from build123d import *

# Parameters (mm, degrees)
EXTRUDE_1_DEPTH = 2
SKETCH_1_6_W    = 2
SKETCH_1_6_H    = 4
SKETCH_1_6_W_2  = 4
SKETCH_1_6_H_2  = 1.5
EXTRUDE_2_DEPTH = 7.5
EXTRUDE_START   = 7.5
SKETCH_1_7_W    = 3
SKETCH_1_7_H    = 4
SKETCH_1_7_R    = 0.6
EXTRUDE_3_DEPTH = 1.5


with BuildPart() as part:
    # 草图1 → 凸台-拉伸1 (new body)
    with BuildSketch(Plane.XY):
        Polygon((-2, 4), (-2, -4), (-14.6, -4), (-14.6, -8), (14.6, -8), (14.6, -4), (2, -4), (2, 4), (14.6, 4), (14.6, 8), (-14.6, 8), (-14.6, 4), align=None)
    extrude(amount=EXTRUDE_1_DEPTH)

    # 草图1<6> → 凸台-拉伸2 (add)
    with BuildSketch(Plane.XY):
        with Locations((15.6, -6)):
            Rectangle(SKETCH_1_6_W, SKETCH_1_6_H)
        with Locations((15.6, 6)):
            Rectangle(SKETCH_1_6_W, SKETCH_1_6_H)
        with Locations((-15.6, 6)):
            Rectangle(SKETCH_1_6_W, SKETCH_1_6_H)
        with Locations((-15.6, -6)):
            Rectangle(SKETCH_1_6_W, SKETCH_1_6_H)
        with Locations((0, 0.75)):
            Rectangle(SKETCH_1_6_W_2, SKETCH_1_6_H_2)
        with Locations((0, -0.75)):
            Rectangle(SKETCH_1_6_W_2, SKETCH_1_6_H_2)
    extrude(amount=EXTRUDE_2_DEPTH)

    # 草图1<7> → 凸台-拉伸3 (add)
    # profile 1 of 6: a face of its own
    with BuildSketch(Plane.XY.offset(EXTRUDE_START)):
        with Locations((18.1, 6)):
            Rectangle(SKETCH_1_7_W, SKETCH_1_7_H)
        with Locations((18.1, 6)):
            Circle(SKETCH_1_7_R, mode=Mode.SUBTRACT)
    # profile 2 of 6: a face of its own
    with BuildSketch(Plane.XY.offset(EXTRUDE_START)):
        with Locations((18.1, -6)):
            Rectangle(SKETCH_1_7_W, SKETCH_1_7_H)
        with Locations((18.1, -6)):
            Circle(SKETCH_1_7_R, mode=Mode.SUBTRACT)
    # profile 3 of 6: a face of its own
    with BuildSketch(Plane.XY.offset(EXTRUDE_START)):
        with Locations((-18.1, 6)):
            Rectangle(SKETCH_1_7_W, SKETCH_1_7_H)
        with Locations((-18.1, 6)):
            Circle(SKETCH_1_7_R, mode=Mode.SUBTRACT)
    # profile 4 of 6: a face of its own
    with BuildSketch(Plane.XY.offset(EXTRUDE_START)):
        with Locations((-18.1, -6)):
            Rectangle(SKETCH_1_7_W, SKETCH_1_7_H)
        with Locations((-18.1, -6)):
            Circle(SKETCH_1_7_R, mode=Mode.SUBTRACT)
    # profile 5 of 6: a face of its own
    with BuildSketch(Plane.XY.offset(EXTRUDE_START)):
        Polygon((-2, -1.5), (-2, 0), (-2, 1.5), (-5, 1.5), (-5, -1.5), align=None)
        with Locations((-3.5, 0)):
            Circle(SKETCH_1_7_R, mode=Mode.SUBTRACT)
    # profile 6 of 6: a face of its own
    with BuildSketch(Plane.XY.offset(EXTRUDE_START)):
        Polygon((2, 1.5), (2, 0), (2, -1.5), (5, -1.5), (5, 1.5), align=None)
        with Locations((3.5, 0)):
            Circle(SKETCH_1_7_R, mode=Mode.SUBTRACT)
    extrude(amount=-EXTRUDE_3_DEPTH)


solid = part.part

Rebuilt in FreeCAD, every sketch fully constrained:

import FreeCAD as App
import Part
import Sketcher
from FreeCAD import Vector
Q = App.Units.Quantity

doc = App.newDocument("Part")
body = doc.addObject("PartDesign::Body", "Body")

sketch1 = doc.addObject("Sketcher::SketchObject", "Sketch")
body.addObject(sketch1)
sketch1.AttachmentSupport = (doc.XY_Plane, [""])
sketch1.MapMode = "FlatFace"
sketch1.addGeometry(Part.LineSegment(Vector(-2, 4, 0), Vector(-2, -4, 0)), False)
sketch1.addGeometry(Part.LineSegment(Vector(-2, -4, 0), Vector(-14.6, -4, 0)), False)
sketch1.addGeometry(Part.LineSegment(Vector(-14.6, -4, 0), Vector(-14.6, -8, 0)), False)
sketch1.addGeometry(Part.LineSegment(Vector(-14.6, -8, 0), Vector(14.6, -8, 0)), False)
sketch1.addGeometry(Part.LineSegment(Vector(14.6, -8, 0), Vector(14.6, -4, 0)), False)
sketch1.addGeometry(Part.LineSegment(Vector(14.6, -4, 0), Vector(2, -4, 0)), False)
sketch1.addGeometry(Part.LineSegment(Vector(2, -4, 0), Vector(2, 4, 0)), False)
sketch1.addGeometry(Part.LineSegment(Vector(2, 4, 0), Vector(14.6, 4, 0)), False)
sketch1.addGeometry(Part.LineSegment(Vector(14.6, 4, 0), Vector(14.6, 8, 0)), False)
sketch1.addGeometry(Part.LineSegment(Vector(14.6, 8, 0), Vector(-14.6, 8, 0)), False)
sketch1.addGeometry(Part.LineSegment(Vector(-14.6, 8, 0), Vector(-14.6, 4, 0)), False)
sketch1.addGeometry(Part.LineSegment(Vector(-14.6, 4, 0), Vector(-2, 4, 0)), False)
sketch1.addConstraint(Sketcher.Constraint("Coincident", 0, 2, 1, 1))
sketch1.addConstraint(Sketcher.Constraint("Coincident", 1, 2, 2, 1))
sketch1.addConstraint(Sketcher.Constraint("Coincident", 2, 2, 3, 1))
sketch1.addConstraint(Sketcher.Constraint("Coincident", 3, 2, 4, 1))
sketch1.addConstraint(Sketcher.Constraint("Coincident", 4, 2, 5, 1))
sketch1.addConstraint(Sketcher.Constraint("Coincident", 5, 2, 6, 1))
sketch1.addConstraint(Sketcher.Constraint("Coincident", 6, 2, 7, 1))
sketch1.addConstraint(Sketcher.Constraint("Coincident", 7, 2, 8, 1))
sketch1.addConstraint(Sketcher.Constraint("Coincident", 8, 2, 9, 1))
sketch1.addConstraint(Sketcher.Constraint("Coincident", 9, 2, 10, 1))
sketch1.addConstraint(Sketcher.Constraint("Coincident", 10, 2, 11, 1))
sketch1.addConstraint(Sketcher.Constraint("Coincident", 11, 2, 0, 1))
sketch1.addConstraint(Sketcher.Constraint("Vertical", 0))
sketch1.addConstraint(Sketcher.Constraint("Horizontal", 1))
sketch1.addConstraint(Sketcher.Constraint("Vertical", 2))
sketch1.addConstraint(Sketcher.Constraint("Horizontal", 3))
sketch1.addConstraint(Sketcher.Constraint("Vertical", 4))
sketch1.addConstraint(Sketcher.Constraint("Horizontal", 5))
sketch1.addConstraint(Sketcher.Constraint("Vertical", 6))
sketch1.addConstraint(Sketcher.Constraint("Horizontal", 7))
sketch1.addConstraint(Sketcher.Constraint("Vertical", 8))
sketch1.addConstraint(Sketcher.Constraint("Horizontal", 9))
sketch1.addConstraint(Sketcher.Constraint("Vertical", 10))
sketch1.addConstraint(Sketcher.Constraint("Horizontal", 11))
sketch1.addConstraint(Sketcher.Constraint("Symmetric", 0, 2, 6, 2, -1, 1))
sketch1.addConstraint(Sketcher.Constraint("Symmetric", 2, 2, 8, 2, -1, 1))
sketch1.addConstraint(Sketcher.Constraint("Symmetric", 4, 2, 10, 2, -1, 1))
sketch1.addConstraint(Sketcher.Constraint("Symmetric", 1, 2, 4, 2, -2))
sketch1.addConstraint(Sketcher.Constraint("DistanceY", 0, 2, 0, 1, Q("8 mm")))
sketch1.addConstraint(Sketcher.Constraint("DistanceY", 2, 2, 2, 1, Q("4 mm")))
sketch1.addConstraint(Sketcher.Constraint("DistanceX", 1, 2, 1, 1, Q("12.6 mm")))
sketch1.addConstraint(Sketcher.Constraint("DistanceX", 3, 1, 3, 2, Q("29.2 mm")))
pad1 = doc.addObject("PartDesign::Pad", "Pad")
body.addObject(pad1)
pad1.Profile = sketch1
pad1.Length = 2

sketch2 = doc.addObject("Sketcher::SketchObject", "Sketch001")
body.addObject(sketch2)
sketch2.AttachmentSupport = (doc.XY_Plane, [""])
sketch2.MapMode = "FlatFace"
sketch2.addGeometry(Part.LineSegment(Vector(14.6, -4, 0), Vector(14.6, -8, 0)), False)
sketch2.addGeometry(Part.LineSegment(Vector(14.6, -8, 0), Vector(16.6, -8, 0)), False)
sketch2.addGeometry(Part.LineSegment(Vector(16.6, -8, 0), Vector(16.6, -4, 0)), False)
sketch2.addGeometry(Part.LineSegment(Vector(16.6, -4, 0), Vector(14.6, -4, 0)), False)
sketch2.addGeometry(Part.LineSegment(Vector(14.6, 8, 0), Vector(14.6, 4, 0)), False)
sketch2.addGeometry(Part.LineSegment(Vector(14.6, 4, 0), Vector(16.6, 4, 0)), False)
sketch2.addGeometry(Part.LineSegment(Vector(16.6, 4, 0), Vector(16.6, 8, 0)), False)
sketch2.addGeometry(Part.LineSegment(Vector(16.6, 8, 0), Vector(14.6, 8, 0)), False)
sketch2.addGeometry(Part.LineSegment(Vector(-16.6, 8, 0), Vector(-16.6, 4, 0)), False)
sketch2.addGeometry(Part.LineSegment(Vector(-16.6, 4, 0), Vector(-14.6, 4, 0)), False)
sketch2.addGeometry(Part.LineSegment(Vector(-14.6, 4, 0), Vector(-14.6, 8, 0)), False)
sketch2.addGeometry(Part.LineSegment(Vector(-14.6, 8, 0), Vector(-16.6, 8, 0)), False)
sketch2.addGeometry(Part.LineSegment(Vector(-16.6, -4, 0), Vector(-16.6, -8, 0)), False)
sketch2.addGeometry(Part.LineSegment(Vector(-16.6, -8, 0), Vector(-14.6, -8, 0)), False)
sketch2.addGeometry(Part.LineSegment(Vector(-14.6, -8, 0), Vector(-14.6, -4, 0)), False)
sketch2.addGeometry(Part.LineSegment(Vector(-14.6, -4, 0), Vector(-16.6, -4, 0)), False)
sketch2.addGeometry(Part.LineSegment(Vector(-2, 1.5, 0), Vector(-2, -1.5, 0)), False)
sketch2.addGeometry(Part.LineSegment(Vector(-2, -1.5, 0), Vector(2, -1.5, 0)), False)
sketch2.addGeometry(Part.LineSegment(Vector(2, -1.5, 0), Vector(2, 1.5, 0)), False)
sketch2.addGeometry(Part.LineSegment(Vector(2, 1.5, 0), Vector(-2, 1.5, 0)), False)
sketch2.addConstraint(Sketcher.Constraint("Coincident", 0, 2, 1, 1))
sketch2.addConstraint(Sketcher.Constraint("Coincident", 1, 2, 2, 1))
sketch2.addConstraint(Sketcher.Constraint("Coincident", 2, 2, 3, 1))
sketch2.addConstraint(Sketcher.Constraint("Coincident", 3, 2, 0, 1))
sketch2.addConstraint(Sketcher.Constraint("Coincident", 4, 2, 5, 1))
sketch2.addConstraint(Sketcher.Constraint("Coincident", 5, 2, 6, 1))
sketch2.addConstraint(Sketcher.Constraint("Coincident", 6, 2, 7, 1))
sketch2.addConstraint(Sketcher.Constraint("Coincident", 7, 2, 4, 1))
sketch2.addConstraint(Sketcher.Constraint("Coincident", 8, 2, 9, 1))
sketch2.addConstraint(Sketcher.Constraint("Coincident", 9, 2, 10, 1))
sketch2.addConstraint(Sketcher.Constraint("Coincident", 10, 2, 11, 1))
sketch2.addConstraint(Sketcher.Constraint("Coincident", 11, 2, 8, 1))
sketch2.addConstraint(Sketcher.Constraint("Coincident", 12, 2, 13, 1))
sketch2.addConstraint(Sketcher.Constraint("Coincident", 13, 2, 14, 1))
sketch2.addConstraint(Sketcher.Constraint("Coincident", 14, 2, 15, 1))
sketch2.addConstraint(Sketcher.Constraint("Coincident", 15, 2, 12, 1))
sketch2.addConstraint(Sketcher.Constraint("Coincident", 16, 2, 17, 1))
sketch2.addConstraint(Sketcher.Constraint("Coincident", 17, 2, 18, 1))
sketch2.addConstraint(Sketcher.Constraint("Coincident", 18, 2, 19, 1))
sketch2.addConstraint(Sketcher.Constraint("Coincident", 19, 2, 16, 1))
sketch2.addConstraint(Sketcher.Constraint("Vertical", 0))
sketch2.addConstraint(Sketcher.Constraint("Horizontal", 1))
sketch2.addConstraint(Sketcher.Constraint("Vertical", 2))
sketch2.addConstraint(Sketcher.Constraint("Horizontal", 3))
sketch2.addConstraint(Sketcher.Constraint("Vertical", 4))
sketch2.addConstraint(Sketcher.Constraint("Horizontal", 5))
sketch2.addConstraint(Sketcher.Constraint("Vertical", 6))
sketch2.addConstraint(Sketcher.Constraint("Horizontal", 7))
sketch2.addConstraint(Sketcher.Constraint("Vertical", 8))
sketch2.addConstraint(Sketcher.Constraint("Horizontal", 9))
sketch2.addConstraint(Sketcher.Constraint("Vertical", 10))
sketch2.addConstraint(Sketcher.Constraint("Horizontal", 11))
sketch2.addConstraint(Sketcher.Constraint("Vertical", 12))
sketch2.addConstraint(Sketcher.Constraint("Horizontal", 13))
sketch2.addConstraint(Sketcher.Constraint("Vertical", 14))
sketch2.addConstraint(Sketcher.Constraint("Horizontal", 15))
sketch2.addConstraint(Sketcher.Constraint("Vertical", 16))
sketch2.addConstraint(Sketcher.Constraint("Horizontal", 17))
sketch2.addConstraint(Sketcher.Constraint("Vertical", 18))
sketch2.addConstraint(Sketcher.Constraint("Horizontal", 19))
sketch2.addConstraint(Sketcher.Constraint("Symmetric", 2, 2, 8, 2, -1, 1))
sketch2.addConstraint(Sketcher.Constraint("Symmetric", 0, 2, 10, 2, -1, 1))
sketch2.addConstraint(Sketcher.Constraint("Symmetric", 6, 2, 12, 2, -1, 1))
sketch2.addConstraint(Sketcher.Constraint("Symmetric", 4, 2, 14, 2, -1, 1))
sketch2.addConstraint(Sketcher.Constraint("Symmetric", 16, 2, 18, 2, -1, 1))
sketch2.addConstraint(Sketcher.Constraint("Symmetric", 5, 2, 8, 2, -2))
sketch2.addConstraint(Sketcher.Constraint("Symmetric", 7, 2, 10, 2, -2))
sketch2.addConstraint(Sketcher.Constraint("Equal", 19, 0))
sketch2.addConstraint(Sketcher.Constraint("DistanceX", 1, 1, 1, 2, Q("2 mm")))
sketch2.addConstraint(Sketcher.Constraint("DistanceX", 17, 1, 17, 2, Q("4 mm")))
sketch2.addConstraint(Sketcher.Constraint("DistanceY", 16, 2, 16, 1, Q("3 mm")))
sketch2.addConstraint(Sketcher.Constraint("DistanceY", 0, 2, -1, 1, Q("8 mm")))
sketch2.addConstraint(Sketcher.Constraint("DistanceX", -1, 1, 0, 2, Q("14.6 mm")))
pad2 = doc.addObject("PartDesign::Pad", "Pad001")
body.addObject(pad2)
pad2.Profile = sketch2
pad2.Length = 7.5

sketch3 = doc.addObject("Sketcher::SketchObject", "Sketch002")
body.addObject(sketch3)
sketch3.AttachmentSupport = (doc.XY_Plane, [""])
sketch3.MapMode = "FlatFace"
sketch3.AttachmentOffset = App.Placement(Vector(0, 0, 7.5), App.Rotation())
sketch3.addGeometry(Part.LineSegment(Vector(16.6, 8, 0), Vector(16.6, 4, 0)), False)
sketch3.addGeometry(Part.LineSegment(Vector(16.6, 4, 0), Vector(19.6, 4, 0)), False)
sketch3.addGeometry(Part.LineSegment(Vector(19.6, 4, 0), Vector(19.6, 8, 0)), False)
sketch3.addGeometry(Part.LineSegment(Vector(19.6, 8, 0), Vector(16.6, 8, 0)), False)
sketch3.addGeometry(Part.Circle(Vector(18.1, 6, 0), Vector(0, 0, 1), 0.6), False)
sketch3.addGeometry(Part.LineSegment(Vector(16.6, -4, 0), Vector(16.6, -8, 0)), False)
sketch3.addGeometry(Part.LineSegment(Vector(16.6, -8, 0), Vector(19.6, -8, 0)), False)
sketch3.addGeometry(Part.LineSegment(Vector(19.6, -8, 0), Vector(19.6, -4, 0)), False)
sketch3.addGeometry(Part.LineSegment(Vector(19.6, -4, 0), Vector(16.6, -4, 0)), False)
sketch3.addGeometry(Part.Circle(Vector(18.1, -6, 0), Vector(0, 0, 1), 0.6), False)
sketch3.addGeometry(Part.LineSegment(Vector(-19.6, 8, 0), Vector(-19.6, 4, 0)), False)
sketch3.addGeometry(Part.LineSegment(Vector(-19.6, 4, 0), Vector(-16.6, 4, 0)), False)
sketch3.addGeometry(Part.LineSegment(Vector(-16.6, 4, 0), Vector(-16.6, 8, 0)), False)
sketch3.addGeometry(Part.LineSegment(Vector(-16.6, 8, 0), Vector(-19.6, 8, 0)), False)
sketch3.addGeometry(Part.Circle(Vector(-18.1, 6, 0), Vector(0, 0, 1), 0.6), False)
sketch3.addGeometry(Part.LineSegment(Vector(-19.6, -4, 0), Vector(-19.6, -8, 0)), False)
sketch3.addGeometry(Part.LineSegment(Vector(-19.6, -8, 0), Vector(-16.6, -8, 0)), False)
sketch3.addGeometry(Part.LineSegment(Vector(-16.6, -8, 0), Vector(-16.6, -4, 0)), False)
sketch3.addGeometry(Part.LineSegment(Vector(-16.6, -4, 0), Vector(-19.6, -4, 0)), False)
sketch3.addGeometry(Part.Circle(Vector(-18.1, -6, 0), Vector(0, 0, 1), 0.6), False)
sketch3.addGeometry(Part.LineSegment(Vector(-2, -1.5, 0), Vector(-2, 1.5, 0)), False)
sketch3.addGeometry(Part.LineSegment(Vector(-2, 1.5, 0), Vector(-5, 1.5, 0)), False)
sketch3.addGeometry(Part.LineSegment(Vector(-5, 1.5, 0), Vector(-5, -1.5, 0)), False)
sketch3.addGeometry(Part.LineSegment(Vector(-5, -1.5, 0), Vector(-2, -1.5, 0)), False)
sketch3.addGeometry(Part.Circle(Vector(-3.5, 0, 0), Vector(0, 0, 1), 0.6), False)
sketch3.addGeometry(Part.LineSegment(Vector(2, 1.5, 0), Vector(2, -1.5, 0)), False)
sketch3.addGeometry(Part.LineSegment(Vector(2, -1.5, 0), Vector(5, -1.5, 0)), False)
sketch3.addGeometry(Part.LineSegment(Vector(5, -1.5, 0), Vector(5, 1.5, 0)), False)
sketch3.addGeometry(Part.LineSegment(Vector(5, 1.5, 0), Vector(2, 1.5, 0)), False)
sketch3.addGeometry(Part.Circle(Vector(3.5, 0, 0), Vector(0, 0, 1), 0.6), False)
sketch3.addConstraint(Sketcher.Constraint("Coincident", 0, 2, 1, 1))
sketch3.addConstraint(Sketcher.Constraint("Coincident", 1, 2, 2, 1))
sketch3.addConstraint(Sketcher.Constraint("Coincident", 2, 2, 3, 1))
sketch3.addConstraint(Sketcher.Constraint("Coincident", 3, 2, 0, 1))
sketch3.addConstraint(Sketcher.Constraint("Coincident", 5, 2, 6, 1))
sketch3.addConstraint(Sketcher.Constraint("Coincident", 6, 2, 7, 1))
sketch3.addConstraint(Sketcher.Constraint("Coincident", 7, 2, 8, 1))
sketch3.addConstraint(Sketcher.Constraint("Coincident", 8, 2, 5, 1))
sketch3.addConstraint(Sketcher.Constraint("Coincident", 10, 2, 11, 1))
sketch3.addConstraint(Sketcher.Constraint("Coincident", 11, 2, 12, 1))
sketch3.addConstraint(Sketcher.Constraint("Coincident", 12, 2, 13, 1))
sketch3.addConstraint(Sketcher.Constraint("Coincident", 13, 2, 10, 1))
sketch3.addConstraint(Sketcher.Constraint("Coincident", 15, 2, 16, 1))
sketch3.addConstraint(Sketcher.Constraint("Coincident", 16, 2, 17, 1))
sketch3.addConstraint(Sketcher.Constraint("Coincident", 17, 2, 18, 1))
sketch3.addConstraint(Sketcher.Constraint("Coincident", 18, 2, 15, 1))
sketch3.addConstraint(Sketcher.Constraint("Coincident", 20, 2, 21, 1))
sketch3.addConstraint(Sketcher.Constraint("Coincident", 21, 2, 22, 1))
sketch3.addConstraint(Sketcher.Constraint("Coincident", 22, 2, 23, 1))
sketch3.addConstraint(Sketcher.Constraint("Coincident", 23, 2, 20, 1))
sketch3.addConstraint(Sketcher.Constraint("Coincident", 25, 2, 26, 1))
sketch3.addConstraint(Sketcher.Constraint("Coincident", 26, 2, 27, 1))
sketch3.addConstraint(Sketcher.Constraint("Coincident", 27, 2, 28, 1))
sketch3.addConstraint(Sketcher.Constraint("Coincident", 28, 2, 25, 1))
sketch3.addConstraint(Sketcher.Constraint("Vertical", 0))
sketch3.addConstraint(Sketcher.Constraint("Horizontal", 1))
sketch3.addConstraint(Sketcher.Constraint("Vertical", 2))
sketch3.addConstraint(Sketcher.Constraint("Horizontal", 3))
sketch3.addConstraint(Sketcher.Constraint("Vertical", 5))
sketch3.addConstraint(Sketcher.Constraint("Horizontal", 6))
sketch3.addConstraint(Sketcher.Constraint("Vertical", 7))
sketch3.addConstraint(Sketcher.Constraint("Horizontal", 8))
sketch3.addConstraint(Sketcher.Constraint("Vertical", 10))
sketch3.addConstraint(Sketcher.Constraint("Horizontal", 11))
sketch3.addConstraint(Sketcher.Constraint("Vertical", 12))
sketch3.addConstraint(Sketcher.Constraint("Horizontal", 13))
sketch3.addConstraint(Sketcher.Constraint("Vertical", 15))
sketch3.addConstraint(Sketcher.Constraint("Horizontal", 16))
sketch3.addConstraint(Sketcher.Constraint("Vertical", 17))
sketch3.addConstraint(Sketcher.Constraint("Horizontal", 18))
sketch3.addConstraint(Sketcher.Constraint("Vertical", 20))
sketch3.addConstraint(Sketcher.Constraint("Horizontal", 21))
sketch3.addConstraint(Sketcher.Constraint("Vertical", 22))
sketch3.addConstraint(Sketcher.Constraint("Horizontal", 23))
sketch3.addConstraint(Sketcher.Constraint("Vertical", 25))
sketch3.addConstraint(Sketcher.Constraint("Horizontal", 26))
sketch3.addConstraint(Sketcher.Constraint("Vertical", 27))
sketch3.addConstraint(Sketcher.Constraint("Horizontal", 28))
sketch3.addConstraint(Sketcher.Constraint("Equal", 4, 9))
sketch3.addConstraint(Sketcher.Constraint("Equal", 9, 14))
sketch3.addConstraint(Sketcher.Constraint("Equal", 14, 19))
sketch3.addConstraint(Sketcher.Constraint("Equal", 19, 24))
sketch3.addConstraint(Sketcher.Constraint("Equal", 24, 29))
sketch3.addConstraint(Sketcher.Constraint("Symmetric", 9, 3, 14, 3, -1, 1))
sketch3.addConstraint(Sketcher.Constraint("Symmetric", 4, 3, 19, 3, -1, 1))
sketch3.addConstraint(Sketcher.Constraint("Symmetric", 24, 3, 29, 3, -1, 1))
sketch3.addConstraint(Sketcher.Constraint("Symmetric", 7, 2, 10, 2, -1, 1))
sketch3.addConstraint(Sketcher.Constraint("Symmetric", 5, 2, 12, 2, -1, 1))
sketch3.addConstraint(Sketcher.Constraint("Symmetric", 2, 2, 15, 2, -1, 1))
sketch3.addConstraint(Sketcher.Constraint("Symmetric", 0, 2, 17, 2, -1, 1))
sketch3.addConstraint(Sketcher.Constraint("Symmetric", 20, 2, 25, 2, -1, 1))
sketch3.addConstraint(Sketcher.Constraint("Symmetric", 22, 2, 27, 2, -1, 1))
sketch3.addConstraint(Sketcher.Constraint("Symmetric", 4, 3, 14, 3, -2))
sketch3.addConstraint(Sketcher.Constraint("Symmetric", 1, 2, 10, 2, -2))
sketch3.addConstraint(Sketcher.Constraint("Symmetric", 3, 2, 12, 2, -2))
sketch3.addConstraint(Sketcher.Constraint("PointOnObject", 24, 3, -1))
sketch3.addConstraint(Sketcher.Constraint("Horizontal", 23, 2, 25, 2))
sketch3.addConstraint(Sketcher.Constraint("Equal", 18, 21))
sketch3.addConstraint(Sketcher.Constraint("Equal", 28, 20))
sketch3.addConstraint(Sketcher.Constraint("Diameter", 4, Q("1.2 mm")))
sketch3.addConstraint(Sketcher.Constraint("DistanceX", 1, 1, 1, 2, Q("3 mm")))
sketch3.addConstraint(Sketcher.Constraint("DistanceY", 0, 2, 0, 1, Q("4 mm")))
sketch3.addConstraint(Sketcher.Constraint("DistanceY", -1, 1, 4, 3, Q("6 mm")))
sketch3.addConstraint(Sketcher.Constraint("DistanceY", -1, 1, 0, 2, Q("4 mm")))
sketch3.addConstraint(Sketcher.Constraint("DistanceX", 20, 2, -1, 1, Q("2 mm")))
sketch3.addConstraint(Sketcher.Constraint("DistanceX", 24, 3, 29, 3, Q("7 mm")))
sketch3.addConstraint(Sketcher.Constraint("DistanceX", -1, 1, 4, 3, Q("18.1 mm")))
sketch3.addConstraint(Sketcher.Constraint("DistanceX", -1, 1, 0, 2, Q("16.6 mm")))
pad3 = doc.addObject("PartDesign::Pad", "Pad002")
body.addObject(pad3)
pad3.Profile = sketch3
pad3.Length = 1.5
pad3.Reversed = True

doc.recompute()
